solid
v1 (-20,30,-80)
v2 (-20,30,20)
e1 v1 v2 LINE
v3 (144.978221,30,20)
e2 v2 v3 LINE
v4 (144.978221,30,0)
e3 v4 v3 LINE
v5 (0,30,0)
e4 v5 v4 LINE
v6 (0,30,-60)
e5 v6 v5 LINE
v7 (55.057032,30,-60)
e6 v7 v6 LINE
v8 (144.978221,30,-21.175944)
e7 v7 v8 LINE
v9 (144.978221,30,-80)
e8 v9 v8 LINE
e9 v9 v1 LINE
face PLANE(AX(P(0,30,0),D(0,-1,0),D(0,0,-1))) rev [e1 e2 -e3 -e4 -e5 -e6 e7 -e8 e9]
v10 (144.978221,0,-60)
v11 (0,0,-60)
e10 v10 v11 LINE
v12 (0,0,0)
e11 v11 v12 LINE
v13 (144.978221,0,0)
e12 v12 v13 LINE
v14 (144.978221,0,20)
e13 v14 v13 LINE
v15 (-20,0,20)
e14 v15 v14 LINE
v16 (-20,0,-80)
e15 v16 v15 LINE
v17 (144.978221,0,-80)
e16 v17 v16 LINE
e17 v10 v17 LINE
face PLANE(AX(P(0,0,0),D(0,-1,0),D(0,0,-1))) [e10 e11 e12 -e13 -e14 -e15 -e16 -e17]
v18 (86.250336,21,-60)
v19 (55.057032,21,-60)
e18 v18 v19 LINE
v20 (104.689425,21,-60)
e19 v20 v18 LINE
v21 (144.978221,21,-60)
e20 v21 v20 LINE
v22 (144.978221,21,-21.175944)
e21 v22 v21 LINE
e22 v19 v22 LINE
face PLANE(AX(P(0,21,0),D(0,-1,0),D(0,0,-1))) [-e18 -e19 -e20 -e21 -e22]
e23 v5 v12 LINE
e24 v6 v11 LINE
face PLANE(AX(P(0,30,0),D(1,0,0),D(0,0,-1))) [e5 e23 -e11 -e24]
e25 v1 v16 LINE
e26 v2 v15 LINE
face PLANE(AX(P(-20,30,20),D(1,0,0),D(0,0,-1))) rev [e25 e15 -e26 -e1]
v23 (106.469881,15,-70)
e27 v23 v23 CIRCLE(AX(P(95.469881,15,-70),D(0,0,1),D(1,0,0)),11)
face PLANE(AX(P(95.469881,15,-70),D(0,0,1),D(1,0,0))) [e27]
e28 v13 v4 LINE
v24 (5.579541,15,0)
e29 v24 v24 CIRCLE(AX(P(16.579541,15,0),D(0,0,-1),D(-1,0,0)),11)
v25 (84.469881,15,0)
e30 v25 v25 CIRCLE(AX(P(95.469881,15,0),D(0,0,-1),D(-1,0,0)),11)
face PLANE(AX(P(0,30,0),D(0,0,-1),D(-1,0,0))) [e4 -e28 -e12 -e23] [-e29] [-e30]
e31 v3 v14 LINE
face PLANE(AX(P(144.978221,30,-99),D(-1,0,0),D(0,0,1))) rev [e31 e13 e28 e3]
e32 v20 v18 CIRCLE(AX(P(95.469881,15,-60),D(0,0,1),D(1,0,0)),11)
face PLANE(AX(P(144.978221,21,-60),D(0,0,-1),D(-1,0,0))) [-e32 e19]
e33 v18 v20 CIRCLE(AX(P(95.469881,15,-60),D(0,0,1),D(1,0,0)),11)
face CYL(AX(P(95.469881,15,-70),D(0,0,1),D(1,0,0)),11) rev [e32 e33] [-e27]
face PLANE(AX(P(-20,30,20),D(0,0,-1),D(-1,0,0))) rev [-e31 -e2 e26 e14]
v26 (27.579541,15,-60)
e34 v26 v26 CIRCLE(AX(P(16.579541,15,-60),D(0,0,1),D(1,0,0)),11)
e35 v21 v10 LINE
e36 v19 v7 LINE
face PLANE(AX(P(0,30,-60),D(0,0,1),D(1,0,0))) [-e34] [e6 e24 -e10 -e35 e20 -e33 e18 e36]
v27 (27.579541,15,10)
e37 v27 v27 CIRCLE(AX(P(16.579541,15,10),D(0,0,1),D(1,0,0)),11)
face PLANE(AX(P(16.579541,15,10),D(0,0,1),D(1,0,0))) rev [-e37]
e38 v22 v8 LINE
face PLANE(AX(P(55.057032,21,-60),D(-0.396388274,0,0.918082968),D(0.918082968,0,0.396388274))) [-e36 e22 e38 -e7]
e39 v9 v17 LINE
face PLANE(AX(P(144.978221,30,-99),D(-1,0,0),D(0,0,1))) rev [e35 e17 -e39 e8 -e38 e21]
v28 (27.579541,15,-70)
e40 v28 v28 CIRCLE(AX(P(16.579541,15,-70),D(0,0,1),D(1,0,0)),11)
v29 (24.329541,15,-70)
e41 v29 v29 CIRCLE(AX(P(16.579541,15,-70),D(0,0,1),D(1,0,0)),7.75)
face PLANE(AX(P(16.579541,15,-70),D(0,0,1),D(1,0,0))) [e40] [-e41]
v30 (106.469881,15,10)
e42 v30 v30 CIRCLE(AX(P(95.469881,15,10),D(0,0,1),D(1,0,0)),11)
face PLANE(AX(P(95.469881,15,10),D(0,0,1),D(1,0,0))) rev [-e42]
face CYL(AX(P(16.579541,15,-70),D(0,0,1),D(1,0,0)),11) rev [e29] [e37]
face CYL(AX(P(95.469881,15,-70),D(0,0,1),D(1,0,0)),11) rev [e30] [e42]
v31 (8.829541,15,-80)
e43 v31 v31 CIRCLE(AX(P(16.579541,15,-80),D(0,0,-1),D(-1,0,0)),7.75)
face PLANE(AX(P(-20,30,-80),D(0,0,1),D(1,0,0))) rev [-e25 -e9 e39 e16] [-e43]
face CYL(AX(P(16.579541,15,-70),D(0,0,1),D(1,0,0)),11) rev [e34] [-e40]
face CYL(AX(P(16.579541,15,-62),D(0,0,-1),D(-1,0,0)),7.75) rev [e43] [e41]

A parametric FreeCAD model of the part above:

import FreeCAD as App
import Part
import Sketcher

V = App.Vector
Q = App.Units.Quantity


def add_polygon(sketch, points):
    """Adds a closed chain of lines whose ends are joined by coincident constraints."""
    first, n = sketch.GeometryCount, len(points)
    for a, b in zip(points, points[1:] + points[:1]):
        sketch.addGeometry(Part.LineSegment(App.Vector(*a, 0), App.Vector(*b, 0)), False)
    for i in range(n):
        sketch.addConstraint(Sketcher.Constraint("Coincident", first + i, 2, first + (i + 1) % n, 1))

doc = App.newDocument("Part")
body = doc.addObject("PartDesign::Body", "Body")

sketch1 = body.newObject("Sketcher::SketchObject", "Sketch")
sketch1.AttachmentSupport = (doc.getObject("XZ_Plane"), [""])
sketch1.MapMode = "FlatFace"
add_polygon(sketch1, [(-20, -80), (-20, 20), (260, 20), (260, -80)])
add_polygon(sketch1, [(240, 0), (0, 0), (0, -60), (240, -60)])
sketch1.addConstraint([
    Sketcher.Constraint("Vertical", 0),
    Sketcher.Constraint("Horizontal", 1),
    Sketcher.Constraint("Vertical", 2),
    Sketcher.Constraint("Horizontal", 3),
    Sketcher.Constraint("Horizontal", 4),
    Sketcher.Constraint("Vertical", 5),
    Sketcher.Constraint("Horizontal", 6),
    Sketcher.Constraint("Vertical", 7),
    Sketcher.Constraint("Coincident", 4, 2, -1, 1),
    Sketcher.Constraint("DistanceX", 1, 1, 1, 2, Q("280 mm")),
    Sketcher.Constraint("DistanceX", 4, 2, 4, 1, Q("240 mm")),
    Sketcher.Constraint("DistanceY", 0, 1, 0, 2, Q("100 mm")),
    Sketcher.Constraint("DistanceY", 5, 2, 5, 1, Q("60 mm")),
    Sketcher.Constraint("DistanceX", 0, 2, -1, 1, Q("20 mm")),
    Sketcher.Constraint("DistanceY", -1, 1, 0, 2, Q("20 mm")),
])
pad1 = body.newObject("PartDesign::Pad", "Pad")
pad1.Profile = sketch1
pad1.Length = 30
pad1.Reversed = True

sketch2 = body.newObject("Sketcher::SketchObject", "Sketch001")
sketch2.AttachmentSupport = (doc.getObject("XY_Plane"), [""])
sketch2.MapMode = "FlatFace"
sketch2.AttachmentOffset = App.Placement(V(0, 0, -30), App.Rotation())
sketch2.addGeometry([
    Part.Circle(V(228.036931, 15, 0), V(0, 0, 1), 11),
    Part.Circle(V(16.579541, 15, 0), V(0, 0, 1), 11),
    Part.Circle(V(95.469881, 15, 0), V(0, 0, 1), 11),
], False)
sketch2.addConstraint([
    Sketcher.Constraint("Equal", 0, 1),
    Sketcher.Constraint("Equal", 1, 2),
    Sketcher.Constraint("Horizontal", 0, 3, 1, 3),
    Sketcher.Constraint("Horizontal", 1, 3, 2, 3),
    Sketcher.Constraint("Diameter", 0, Q("22 mm")),
    Sketcher.Constraint("DistanceY", -1, 1, 0, 3, Q("15 mm")),
    Sketcher.Constraint("DistanceX", -1, 1, 0, 3, Q("228.036931 mm")),
    Sketcher.Constraint("DistanceX", -1, 1, 1, 3, Q("16.579541 mm")),
    Sketcher.Constraint("DistanceX", -1, 1, 2, 3, Q("95.469881 mm")),
])
pocket1 = body.newObject("PartDesign::Pocket", "Pocket")
pocket1.Profile = sketch2
pocket1.Length = 80
pocket1.Midplane = True

sketch3 = body.newObject("Sketcher::SketchObject", "Sketch002")
sketch3.AttachmentSupport = (doc.getObject("XY_Plane"), [""])
sketch3.MapMode = "FlatFace"
sketch3.AttachmentOffset = App.Placement(V(0, 0, 20), App.Rotation())
add_polygon(sketch3, [(144.978221, 30), (144.978221, 15), (209.978221, 15), (209.978221, 30)])
sketch3.addConstraint([
    Sketcher.Constraint("Vertical", 0),
    Sketcher.Constraint("Horizontal", 1),
    Sketcher.Constraint("Vertical", 2),
    Sketcher.Constraint("Horizontal", 3),
    Sketcher.Constraint("DistanceX", 1, 1, 1, 2, Q("65 mm")),
    Sketcher.Constraint("DistanceY", 0, 2, 0, 1, Q("15 mm")),
    Sketcher.Constraint("DistanceY", -1, 1, 0, 2, Q("15 mm")),
    Sketcher.Constraint("DistanceX", -1, 1, 0, 2, Q("144.978221 mm")),
])
pocket2 = body.newObject("PartDesign::Pocket", "Pocket001")
pocket2.Profile = sketch3
pocket2.Length = 119

sketch4 = body.newObject("Sketcher::SketchObject", "Sketch003")
sketch4.AttachmentSupport = (doc.getObject("XY_Plane"), [""])
sketch4.MapMode = "FlatFace"
sketch4.AttachmentOffset = App.Placement(V(0, 0, -30), App.Rotation())
add_polygon(sketch4, [(260, 31.552277), (234.133247, 31.552277), (234.359912, 20.46764), (260, 4.801073)])
sketch4.addConstraint([
    Sketcher.Constraint("Horizontal", 0),
    Sketcher.Constraint("Vertical", 3),
    Sketcher.Constraint("DistanceX", -1, 1, 2, 2, Q("260 mm")),
    Sketcher.Constraint("DistanceX", 0, 2, 0, 1, Q("25.866753 mm")),
    Sketcher.Constraint("DistanceY", 3, 1, 3, 2, Q("26.751204 mm")),
    Sketcher.Constraint("DistanceX", -1, 1, 1, 2, Q("234.359912 mm")),
    Sketcher.Constraint("DistanceY", -1, 1, 1, 2, Q("20.46764 mm")),
    Sketcher.Constraint("Distance", 1, Q("11.086955 mm")),
])
pocket3 = body.newObject("PartDesign::Pocket", "Pocket002")
pocket3.Profile = sketch4
pocket3.Length = 49
pocket3.Midplane = True

sketch5 = body.newObject("Sketcher::SketchObject", "Sketch004")
sketch5.AttachmentSupport = (doc.getObject("XZ_Plane"), [""])
sketch5.MapMode = "FlatFace"
sketch5.AttachmentOffset = App.Placement(V(0, 0, -22), App.Rotation())
add_polygon(sketch5, [(55.057032, -60), (144.978221, -21.175944), (144.978221, -60)])
sketch5.addConstraint([
    Sketcher.Constraint("Vertical", 1),
    Sketcher.Constraint("Horizontal", 2),
    Sketcher.Constraint("DistanceY", 1, 2, -1, 1, Q("60 mm")),
    Sketcher.Constraint("DistanceX", 2, 2, 2, 1, Q("89.921189 mm")),
    Sketcher.Constraint("DistanceY", 1, 2, 1, 1, Q("38.824056 mm")),
    Sketcher.Constraint("DistanceX", -1, 1, 0, 2, Q("144.978221 mm")),
])
pad2 = body.newObject("PartDesign::Pad", "Pad001")
pad2.Profile = sketch5
pad2.Type = "TwoLengths"
pad2.Length = 8
pad2.Length2 = 1
pad2.Reversed = True

sketch6 = body.newObject("Sketcher::SketchObject", "Sketch005")
sketch6.AttachmentSupport = (doc.getObject("XY_Plane"), [""])
sketch6.MapMode = "FlatFace"
sketch6.AttachmentOffset = App.Placement(V(0, 0, -80), App.Rotation())
sketch6.addGeometry(Part.Circle(V(16.579541, 15, 0), V(0, 0, 1), 7.75), False)
sketch6.addConstraint([
    Sketcher.Constraint("Diameter", 0, Q("15.5 mm")),
    Sketcher.Constraint("DistanceY", -1, 1, 0, 3, Q("15 mm")),
    Sketcher.Constraint("DistanceX", -1, 1, 0, 3, Q("16.579541 mm")),
])
pocket4 = body.newObject("PartDesign::Pocket", "Pocket003")
pocket4.Profile = sketch6
pocket4.Length = 18
pocket4.Reversed = True

sketch7 = body.newObject("Sketcher::SketchObject", "Sketch006")
sketch7.AttachmentSupport = (doc.getObject("XZ_Plane"), [""])
sketch7.MapMode = "FlatFace"
sketch7.AttachmentOffset = App.Placement(V(0, 0, -30), App.Rotation())
add_polygon(sketch7, [(144.978221, -84.641272), (144.978221, 20), (279.047918, 20), (279.047918, -84.641272)])
sketch7.addConstraint([
    Sketcher.Constraint("Vertical", 0),
    Sketcher.Constraint("Horizontal", 1),
    Sketcher.Constraint("Vertical", 2),
    Sketcher.Constraint("Horizontal", 3),
    Sketcher.Constraint("DistanceY", -1, 1, 0, 2, Q("20 mm")),
    Sketcher.Constraint("DistanceX", 1, 1, 1, 2, Q("134.069697 mm")),
    Sketcher.Constraint("DistanceY", 0, 1, 0, 2, Q("104.641272 mm")),
    Sketcher.Constraint("DistanceX", -1, 1, 0, 2, Q("144.978221 mm")),
])
pocket5 = body.newObject("PartDesign::Pocket", "Pocket004")
pocket5.Profile = sketch7
pocket5.Length = 136
pocket5.Reversed = True

doc.recompute()
